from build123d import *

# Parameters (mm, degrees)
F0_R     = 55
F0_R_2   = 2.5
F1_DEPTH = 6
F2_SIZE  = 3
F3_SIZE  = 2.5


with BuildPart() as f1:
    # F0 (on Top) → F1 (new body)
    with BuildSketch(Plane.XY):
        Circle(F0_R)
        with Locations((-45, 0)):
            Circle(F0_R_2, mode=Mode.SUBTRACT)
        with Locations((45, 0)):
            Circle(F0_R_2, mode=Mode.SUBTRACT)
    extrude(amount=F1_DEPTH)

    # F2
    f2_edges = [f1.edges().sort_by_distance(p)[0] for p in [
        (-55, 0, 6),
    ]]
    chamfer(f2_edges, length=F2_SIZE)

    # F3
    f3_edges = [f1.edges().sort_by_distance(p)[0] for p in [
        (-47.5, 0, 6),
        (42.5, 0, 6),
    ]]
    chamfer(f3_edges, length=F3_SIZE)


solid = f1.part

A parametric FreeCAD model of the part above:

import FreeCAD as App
import Part
import Sketcher
Q = App.Units.Quantity


def edges_at(feature, points):
    """Names of the edges that pass closest to the given points."""
    edges = feature.Shape.Edges
    near = lambda p: min(range(len(edges)), key=lambda i: edges[i].distToShape(Part.Vertex(*p))[0])
    return sorted({f"Edge{near(p) + 1}" for p in points})

doc = App.newDocument("Part")
params = doc.addObject("Spreadsheet::Sheet", "Params")
for row, (alias, value) in enumerate([
    ("sketch1_diameter", "110 mm"),
    ("sketch1_diameter2", "5 mm"),
    ("pad1_length", "6 mm"),
    ("chamfer_size", "3 mm"),
    ("chamfer2_size", "2.5 mm"),
], start=1):
    params.set(f"A{row}", alias)
    params.set(f"B{row}", "=" + value)
    params.setAlias(f"B{row}", alias)

body = doc.addObject("PartDesign::Body", "Body")

sketch1 = doc.addObject("Sketcher::SketchObject", "Sketch")
body.addObject(sketch1)
sketch1.AttachmentSupport = (doc.XY_Plane, [""])
sketch1.MapMode = "FlatFace"
sketch1.addGeometry([
    Part.Circle(App.Vector(0, 0, 0), App.Vector(0, 0, 1), 55),
    Part.Circle(App.Vector(-45, 0, 0), App.Vector(0, 0, 1), 2.5),
    Part.Circle(App.Vector(45, 0, 0), App.Vector(0, 0, 1), 2.5),
], False)
sketch1.addConstraint([
    Sketcher.Constraint("Coincident", 0, 3, -1, 1),
    Sketcher.Constraint("Equal", 1, 2),
    Sketcher.Constraint("Symmetric", 1, 3, 2, 3, -1, 1),
    Sketcher.Constraint("PointOnObject", 1, 3, -1),
    Sketcher.Constraint("Diameter", 0, Q("110 mm")),
    Sketcher.Constraint("Diameter", 1, Q("5 mm")),
    Sketcher.Constraint("DistanceX", 1, 3, -1, 1, Q("45 mm")),
])
sketch1.setExpression("Constraints[4]", "Params.sketch1_diameter")
sketch1.setExpression("Constraints[5]", "Params.sketch1_diameter2")
pad1 = doc.addObject("PartDesign::Pad", "Pad")
body.addObject(pad1)
pad1.Profile = sketch1
pad1.setExpression("Length", "Params.pad1_length")
doc.recompute()

chamfer = doc.addObject("PartDesign::Chamfer", "Chamfer")
body.addObject(chamfer)
chamfer.Base = (pad1, edges_at(pad1, [(-55, 0, 6)]))
chamfer.setExpression("Size", "Params.chamfer_size")
doc.recompute()

chamfer2 = doc.addObject("PartDesign::Chamfer", "Chamfer001")
body.addObject(chamfer2)
chamfer2.Base = (chamfer, edges_at(chamfer, [(-47.5, 0, 6), (42.5, 0, 6)]))
chamfer2.setExpression("Size", "Params.chamfer2_size")

doc.recompute()
